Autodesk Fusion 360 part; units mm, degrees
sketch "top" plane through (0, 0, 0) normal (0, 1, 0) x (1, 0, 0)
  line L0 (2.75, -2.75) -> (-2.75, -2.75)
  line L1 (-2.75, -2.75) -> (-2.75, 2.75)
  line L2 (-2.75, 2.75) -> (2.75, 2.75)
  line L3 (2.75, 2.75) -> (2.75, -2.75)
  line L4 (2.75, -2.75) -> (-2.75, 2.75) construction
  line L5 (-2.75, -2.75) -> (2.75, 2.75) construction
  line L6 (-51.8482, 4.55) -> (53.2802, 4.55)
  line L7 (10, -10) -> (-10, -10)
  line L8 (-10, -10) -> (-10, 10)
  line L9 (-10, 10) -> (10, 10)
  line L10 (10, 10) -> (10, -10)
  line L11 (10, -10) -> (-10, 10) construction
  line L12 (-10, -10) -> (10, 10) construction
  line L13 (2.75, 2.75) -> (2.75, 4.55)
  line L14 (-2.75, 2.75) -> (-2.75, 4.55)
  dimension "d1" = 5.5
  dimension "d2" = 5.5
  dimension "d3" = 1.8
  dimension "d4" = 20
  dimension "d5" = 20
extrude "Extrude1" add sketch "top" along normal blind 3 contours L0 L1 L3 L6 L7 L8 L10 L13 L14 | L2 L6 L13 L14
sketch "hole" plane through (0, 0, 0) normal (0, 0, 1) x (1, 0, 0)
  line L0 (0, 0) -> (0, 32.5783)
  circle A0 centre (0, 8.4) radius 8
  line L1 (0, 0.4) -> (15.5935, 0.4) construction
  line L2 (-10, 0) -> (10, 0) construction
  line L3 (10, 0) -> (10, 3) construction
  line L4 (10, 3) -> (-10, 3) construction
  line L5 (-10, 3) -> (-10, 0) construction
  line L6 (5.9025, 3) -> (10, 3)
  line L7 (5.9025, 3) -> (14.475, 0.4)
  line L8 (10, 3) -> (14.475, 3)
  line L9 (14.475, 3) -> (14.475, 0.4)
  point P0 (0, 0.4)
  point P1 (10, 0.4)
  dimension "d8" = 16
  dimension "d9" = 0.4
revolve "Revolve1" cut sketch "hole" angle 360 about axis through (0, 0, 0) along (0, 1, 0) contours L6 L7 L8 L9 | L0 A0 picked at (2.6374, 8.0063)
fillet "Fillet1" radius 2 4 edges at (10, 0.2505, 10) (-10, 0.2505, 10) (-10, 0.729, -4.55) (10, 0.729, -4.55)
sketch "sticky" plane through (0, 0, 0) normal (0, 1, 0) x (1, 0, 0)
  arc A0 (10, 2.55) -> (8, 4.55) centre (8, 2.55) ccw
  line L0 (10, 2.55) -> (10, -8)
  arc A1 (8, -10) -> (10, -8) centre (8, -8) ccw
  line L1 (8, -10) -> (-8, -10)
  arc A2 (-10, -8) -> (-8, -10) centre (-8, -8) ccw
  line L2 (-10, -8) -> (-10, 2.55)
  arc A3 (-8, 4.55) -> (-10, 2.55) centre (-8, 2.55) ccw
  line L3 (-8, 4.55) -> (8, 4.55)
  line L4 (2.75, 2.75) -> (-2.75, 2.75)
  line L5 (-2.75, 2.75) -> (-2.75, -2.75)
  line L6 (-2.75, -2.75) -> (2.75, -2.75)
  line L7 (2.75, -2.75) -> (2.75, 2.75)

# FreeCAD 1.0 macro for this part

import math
import FreeCAD as App
import Part
import Sketcher

V = App.Vector
Q = App.Units.Quantity


def edges_at(feature, points):
    """Names of the edges that pass closest to the given points."""
    edges = feature.Shape.Edges
    near = lambda p: min(range(len(edges)), key=lambda i: edges[i].distToShape(Part.Vertex(*p))[0])
    return sorted({f"Edge{near(p) + 1}" for p in points})

doc = App.newDocument("Part")
body = doc.addObject("PartDesign::Body", "Body")

# Sketch on XZ plane
sketch1 = body.newObject("Sketcher::SketchObject", "Sketch")
sketch1.AttachmentSupport = (doc.getObject("XZ_Plane"), [""])
sketch1.MapMode = "FlatFace"
sketch1.addGeometry(Part.LineSegment(V(10, -4.55, 0), V(-10, -4.55, 0)), False)
sketch1.addGeometry(Part.LineSegment(V(-10, -4.55, 0), V(-10, 10, 0)), False)
sketch1.addGeometry(Part.LineSegment(V(-10, 10, 0), V(10, 10, 0)), False)
sketch1.addGeometry(Part.LineSegment(V(10, 10, 0), V(10, -4.55, 0)), False)
sketch1.addGeometry(Part.LineSegment(V(2.75, -2.75, 0), V(2.75, 2.75, 0)), False)
sketch1.addGeometry(Part.LineSegment(V(2.75, 2.75, 0), V(-2.75, 2.75, 0)), False)
sketch1.addGeometry(Part.LineSegment(V(-2.75, 2.75, 0), V(-2.75, -2.75, 0)), False)
sketch1.addGeometry(Part.LineSegment(V(-2.75, -2.75, 0), V(2.75, -2.75, 0)), False)
sketch1.addConstraint(Sketcher.Constraint("Coincident", 0, 2, 1, 1))
sketch1.addConstraint(Sketcher.Constraint("Coincident", 1, 2, 2, 1))
sketch1.addConstraint(Sketcher.Constraint("Coincident", 2, 2, 3, 1))
sketch1.addConstraint(Sketcher.Constraint("Coincident", 3, 2, 0, 1))
sketch1.addConstraint(Sketcher.Constraint("Coincident", 4, 2, 5, 1))
sketch1.addConstraint(Sketcher.Constraint("Coincident", 5, 2, 6, 1))
sketch1.addConstraint(Sketcher.Constraint("Coincident", 6, 2, 7, 1))
sketch1.addConstraint(Sketcher.Constraint("Coincident", 7, 2, 4, 1))
sketch1.addConstraint(Sketcher.Constraint("Horizontal", 0))
sketch1.addConstraint(Sketcher.Constraint("Vertical", 1))
sketch1.addConstraint(Sketcher.Constraint("Horizontal", 2))
sketch1.addConstraint(Sketcher.Constraint("Vertical", 3))
sketch1.addConstraint(Sketcher.Constraint("Vertical", 4))
sketch1.addConstraint(Sketcher.Constraint("Horizontal", 5))
sketch1.addConstraint(Sketcher.Constraint("Vertical", 6))
sketch1.addConstraint(Sketcher.Constraint("Horizontal", 7))
sketch1.addConstraint(Sketcher.Constraint("Symmetric", 4, 2, 6, 2, -1, 1))
sketch1.addConstraint(Sketcher.Constraint("Equal", 7, 4))
sketch1.addConstraint(Sketcher.Constraint("DistanceX", 0, 2, 0, 1, Q("20 mm")))
sketch1.addConstraint(Sketcher.Constraint("DistanceX", 5, 2, 5, 1, Q("5.5 mm")))
sketch1.addConstraint(Sketcher.Constraint("DistanceY", 0, 2, 6, 2, Q("1.8 mm")))
sketch1.addConstraint(Sketcher.Constraint("DistanceX", 0, 2, -1, 1, Q("10 mm")))
sketch1.addConstraint(Sketcher.Constraint("DistanceY", -1, 1, 1, 2, Q("10 mm")))
pad1 = body.newObject("PartDesign::Pad", "Pad")
pad1.Profile = sketch1
pad1.Length = 3
pad1.Reversed = True

# Sketch on XY plane
sketch2 = body.newObject("Sketcher::SketchObject", "Sketch001")
sketch2.AttachmentSupport = (doc.getObject("XY_Plane"), [""])
sketch2.MapMode = "FlatFace"
sketch2.addGeometry(Part.LineSegment(V(14.475, 3, 0), V(5.9025, 3, 0)), False)
sketch2.addGeometry(Part.LineSegment(V(5.9025, 3, 0), V(14.475, 0.4, 0)), False)
sketch2.addGeometry(Part.LineSegment(V(14.475, 0.4, 0), V(14.475, 3, 0)), False)
sketch2.addGeometry(Part.LineSegment(V(0, 16.4, 0), V(0, 0.4, 0)), False)
sketch2.addGeometry(Part.ArcOfCircle(Part.Circle(V(0, 8.4, 0), V(0, 0, 1), 8), math.radians(-90), math.radians(-42.454352)), False)
sketch2.addGeometry(Part.ArcOfCircle(Part.Circle(V(0, 8.4, 0), V(0, 0, 1), 8), math.radians(-42.454352), math.radians(90)), False)
sketch2.addConstraint(Sketcher.Constraint("Coincident", 0, 2, 1, 1))
sketch2.addConstraint(Sketcher.Constraint("Coincident", 1, 2, 2, 1))
sketch2.addConstraint(Sketcher.Constraint("Coincident", 2, 2, 0, 1))
sketch2.addConstraint(Sketcher.Constraint("Coincident", 3, 2, 4, 1))
sketch2.addConstraint(Sketcher.Constraint("Tangent", 4, 2, 5, 1))
sketch2.addConstraint(Sketcher.Constraint("Coincident", 5, 2, 3, 1))
sketch2.addConstraint(Sketcher.Constraint("Horizontal", 0))
sketch2.addConstraint(Sketcher.Constraint("Vertical", 2))
sketch2.addConstraint(Sketcher.Constraint("Vertical", 3))
sketch2.addConstraint(Sketcher.Constraint("Coincident", 4, 2, 0, 2))
sketch2.addConstraint(Sketcher.Constraint("Equal", 4, 5))
sketch2.addConstraint(Sketcher.Constraint("PointOnObject", 4, 3, -2))
sketch2.addConstraint(Sketcher.Constraint("PointOnObject", 3, 2, -2))
sketch2.addConstraint(Sketcher.Constraint("Horizontal", 1, 2, 3, 2))
sketch2.addConstraint(Sketcher.Constraint("Radius", 4, Q("8 mm")))
sketch2.addConstraint(Sketcher.Constraint("DistanceY", -1, 1, 1, 2, Q("0.4 mm")))
sketch2.addConstraint(Sketcher.Constraint("DistanceY", 2, 1, 2, 2, Q("2.6 mm")))
sketch2.addConstraint(Sketcher.Constraint("Distance", 1, Q("8.958 mm")))
groove = body.newObject("PartDesign::Groove", "Groove")
groove.Profile = sketch2
groove.ReferenceAxis = (sketch2, ["V_Axis"])
groove.Angle = 360
doc.recompute()

fillet = body.newObject("PartDesign::Fillet", "Fillet")
fillet.Base = (groove, edges_at(groove, [
    (10, 0.251, 10),
    (-10, 0.251, 10),
    (-10, 0.729, -4.55),
    (10, 0.729, -4.55),
]))
fillet.Radius = 2

doc.recompute()
